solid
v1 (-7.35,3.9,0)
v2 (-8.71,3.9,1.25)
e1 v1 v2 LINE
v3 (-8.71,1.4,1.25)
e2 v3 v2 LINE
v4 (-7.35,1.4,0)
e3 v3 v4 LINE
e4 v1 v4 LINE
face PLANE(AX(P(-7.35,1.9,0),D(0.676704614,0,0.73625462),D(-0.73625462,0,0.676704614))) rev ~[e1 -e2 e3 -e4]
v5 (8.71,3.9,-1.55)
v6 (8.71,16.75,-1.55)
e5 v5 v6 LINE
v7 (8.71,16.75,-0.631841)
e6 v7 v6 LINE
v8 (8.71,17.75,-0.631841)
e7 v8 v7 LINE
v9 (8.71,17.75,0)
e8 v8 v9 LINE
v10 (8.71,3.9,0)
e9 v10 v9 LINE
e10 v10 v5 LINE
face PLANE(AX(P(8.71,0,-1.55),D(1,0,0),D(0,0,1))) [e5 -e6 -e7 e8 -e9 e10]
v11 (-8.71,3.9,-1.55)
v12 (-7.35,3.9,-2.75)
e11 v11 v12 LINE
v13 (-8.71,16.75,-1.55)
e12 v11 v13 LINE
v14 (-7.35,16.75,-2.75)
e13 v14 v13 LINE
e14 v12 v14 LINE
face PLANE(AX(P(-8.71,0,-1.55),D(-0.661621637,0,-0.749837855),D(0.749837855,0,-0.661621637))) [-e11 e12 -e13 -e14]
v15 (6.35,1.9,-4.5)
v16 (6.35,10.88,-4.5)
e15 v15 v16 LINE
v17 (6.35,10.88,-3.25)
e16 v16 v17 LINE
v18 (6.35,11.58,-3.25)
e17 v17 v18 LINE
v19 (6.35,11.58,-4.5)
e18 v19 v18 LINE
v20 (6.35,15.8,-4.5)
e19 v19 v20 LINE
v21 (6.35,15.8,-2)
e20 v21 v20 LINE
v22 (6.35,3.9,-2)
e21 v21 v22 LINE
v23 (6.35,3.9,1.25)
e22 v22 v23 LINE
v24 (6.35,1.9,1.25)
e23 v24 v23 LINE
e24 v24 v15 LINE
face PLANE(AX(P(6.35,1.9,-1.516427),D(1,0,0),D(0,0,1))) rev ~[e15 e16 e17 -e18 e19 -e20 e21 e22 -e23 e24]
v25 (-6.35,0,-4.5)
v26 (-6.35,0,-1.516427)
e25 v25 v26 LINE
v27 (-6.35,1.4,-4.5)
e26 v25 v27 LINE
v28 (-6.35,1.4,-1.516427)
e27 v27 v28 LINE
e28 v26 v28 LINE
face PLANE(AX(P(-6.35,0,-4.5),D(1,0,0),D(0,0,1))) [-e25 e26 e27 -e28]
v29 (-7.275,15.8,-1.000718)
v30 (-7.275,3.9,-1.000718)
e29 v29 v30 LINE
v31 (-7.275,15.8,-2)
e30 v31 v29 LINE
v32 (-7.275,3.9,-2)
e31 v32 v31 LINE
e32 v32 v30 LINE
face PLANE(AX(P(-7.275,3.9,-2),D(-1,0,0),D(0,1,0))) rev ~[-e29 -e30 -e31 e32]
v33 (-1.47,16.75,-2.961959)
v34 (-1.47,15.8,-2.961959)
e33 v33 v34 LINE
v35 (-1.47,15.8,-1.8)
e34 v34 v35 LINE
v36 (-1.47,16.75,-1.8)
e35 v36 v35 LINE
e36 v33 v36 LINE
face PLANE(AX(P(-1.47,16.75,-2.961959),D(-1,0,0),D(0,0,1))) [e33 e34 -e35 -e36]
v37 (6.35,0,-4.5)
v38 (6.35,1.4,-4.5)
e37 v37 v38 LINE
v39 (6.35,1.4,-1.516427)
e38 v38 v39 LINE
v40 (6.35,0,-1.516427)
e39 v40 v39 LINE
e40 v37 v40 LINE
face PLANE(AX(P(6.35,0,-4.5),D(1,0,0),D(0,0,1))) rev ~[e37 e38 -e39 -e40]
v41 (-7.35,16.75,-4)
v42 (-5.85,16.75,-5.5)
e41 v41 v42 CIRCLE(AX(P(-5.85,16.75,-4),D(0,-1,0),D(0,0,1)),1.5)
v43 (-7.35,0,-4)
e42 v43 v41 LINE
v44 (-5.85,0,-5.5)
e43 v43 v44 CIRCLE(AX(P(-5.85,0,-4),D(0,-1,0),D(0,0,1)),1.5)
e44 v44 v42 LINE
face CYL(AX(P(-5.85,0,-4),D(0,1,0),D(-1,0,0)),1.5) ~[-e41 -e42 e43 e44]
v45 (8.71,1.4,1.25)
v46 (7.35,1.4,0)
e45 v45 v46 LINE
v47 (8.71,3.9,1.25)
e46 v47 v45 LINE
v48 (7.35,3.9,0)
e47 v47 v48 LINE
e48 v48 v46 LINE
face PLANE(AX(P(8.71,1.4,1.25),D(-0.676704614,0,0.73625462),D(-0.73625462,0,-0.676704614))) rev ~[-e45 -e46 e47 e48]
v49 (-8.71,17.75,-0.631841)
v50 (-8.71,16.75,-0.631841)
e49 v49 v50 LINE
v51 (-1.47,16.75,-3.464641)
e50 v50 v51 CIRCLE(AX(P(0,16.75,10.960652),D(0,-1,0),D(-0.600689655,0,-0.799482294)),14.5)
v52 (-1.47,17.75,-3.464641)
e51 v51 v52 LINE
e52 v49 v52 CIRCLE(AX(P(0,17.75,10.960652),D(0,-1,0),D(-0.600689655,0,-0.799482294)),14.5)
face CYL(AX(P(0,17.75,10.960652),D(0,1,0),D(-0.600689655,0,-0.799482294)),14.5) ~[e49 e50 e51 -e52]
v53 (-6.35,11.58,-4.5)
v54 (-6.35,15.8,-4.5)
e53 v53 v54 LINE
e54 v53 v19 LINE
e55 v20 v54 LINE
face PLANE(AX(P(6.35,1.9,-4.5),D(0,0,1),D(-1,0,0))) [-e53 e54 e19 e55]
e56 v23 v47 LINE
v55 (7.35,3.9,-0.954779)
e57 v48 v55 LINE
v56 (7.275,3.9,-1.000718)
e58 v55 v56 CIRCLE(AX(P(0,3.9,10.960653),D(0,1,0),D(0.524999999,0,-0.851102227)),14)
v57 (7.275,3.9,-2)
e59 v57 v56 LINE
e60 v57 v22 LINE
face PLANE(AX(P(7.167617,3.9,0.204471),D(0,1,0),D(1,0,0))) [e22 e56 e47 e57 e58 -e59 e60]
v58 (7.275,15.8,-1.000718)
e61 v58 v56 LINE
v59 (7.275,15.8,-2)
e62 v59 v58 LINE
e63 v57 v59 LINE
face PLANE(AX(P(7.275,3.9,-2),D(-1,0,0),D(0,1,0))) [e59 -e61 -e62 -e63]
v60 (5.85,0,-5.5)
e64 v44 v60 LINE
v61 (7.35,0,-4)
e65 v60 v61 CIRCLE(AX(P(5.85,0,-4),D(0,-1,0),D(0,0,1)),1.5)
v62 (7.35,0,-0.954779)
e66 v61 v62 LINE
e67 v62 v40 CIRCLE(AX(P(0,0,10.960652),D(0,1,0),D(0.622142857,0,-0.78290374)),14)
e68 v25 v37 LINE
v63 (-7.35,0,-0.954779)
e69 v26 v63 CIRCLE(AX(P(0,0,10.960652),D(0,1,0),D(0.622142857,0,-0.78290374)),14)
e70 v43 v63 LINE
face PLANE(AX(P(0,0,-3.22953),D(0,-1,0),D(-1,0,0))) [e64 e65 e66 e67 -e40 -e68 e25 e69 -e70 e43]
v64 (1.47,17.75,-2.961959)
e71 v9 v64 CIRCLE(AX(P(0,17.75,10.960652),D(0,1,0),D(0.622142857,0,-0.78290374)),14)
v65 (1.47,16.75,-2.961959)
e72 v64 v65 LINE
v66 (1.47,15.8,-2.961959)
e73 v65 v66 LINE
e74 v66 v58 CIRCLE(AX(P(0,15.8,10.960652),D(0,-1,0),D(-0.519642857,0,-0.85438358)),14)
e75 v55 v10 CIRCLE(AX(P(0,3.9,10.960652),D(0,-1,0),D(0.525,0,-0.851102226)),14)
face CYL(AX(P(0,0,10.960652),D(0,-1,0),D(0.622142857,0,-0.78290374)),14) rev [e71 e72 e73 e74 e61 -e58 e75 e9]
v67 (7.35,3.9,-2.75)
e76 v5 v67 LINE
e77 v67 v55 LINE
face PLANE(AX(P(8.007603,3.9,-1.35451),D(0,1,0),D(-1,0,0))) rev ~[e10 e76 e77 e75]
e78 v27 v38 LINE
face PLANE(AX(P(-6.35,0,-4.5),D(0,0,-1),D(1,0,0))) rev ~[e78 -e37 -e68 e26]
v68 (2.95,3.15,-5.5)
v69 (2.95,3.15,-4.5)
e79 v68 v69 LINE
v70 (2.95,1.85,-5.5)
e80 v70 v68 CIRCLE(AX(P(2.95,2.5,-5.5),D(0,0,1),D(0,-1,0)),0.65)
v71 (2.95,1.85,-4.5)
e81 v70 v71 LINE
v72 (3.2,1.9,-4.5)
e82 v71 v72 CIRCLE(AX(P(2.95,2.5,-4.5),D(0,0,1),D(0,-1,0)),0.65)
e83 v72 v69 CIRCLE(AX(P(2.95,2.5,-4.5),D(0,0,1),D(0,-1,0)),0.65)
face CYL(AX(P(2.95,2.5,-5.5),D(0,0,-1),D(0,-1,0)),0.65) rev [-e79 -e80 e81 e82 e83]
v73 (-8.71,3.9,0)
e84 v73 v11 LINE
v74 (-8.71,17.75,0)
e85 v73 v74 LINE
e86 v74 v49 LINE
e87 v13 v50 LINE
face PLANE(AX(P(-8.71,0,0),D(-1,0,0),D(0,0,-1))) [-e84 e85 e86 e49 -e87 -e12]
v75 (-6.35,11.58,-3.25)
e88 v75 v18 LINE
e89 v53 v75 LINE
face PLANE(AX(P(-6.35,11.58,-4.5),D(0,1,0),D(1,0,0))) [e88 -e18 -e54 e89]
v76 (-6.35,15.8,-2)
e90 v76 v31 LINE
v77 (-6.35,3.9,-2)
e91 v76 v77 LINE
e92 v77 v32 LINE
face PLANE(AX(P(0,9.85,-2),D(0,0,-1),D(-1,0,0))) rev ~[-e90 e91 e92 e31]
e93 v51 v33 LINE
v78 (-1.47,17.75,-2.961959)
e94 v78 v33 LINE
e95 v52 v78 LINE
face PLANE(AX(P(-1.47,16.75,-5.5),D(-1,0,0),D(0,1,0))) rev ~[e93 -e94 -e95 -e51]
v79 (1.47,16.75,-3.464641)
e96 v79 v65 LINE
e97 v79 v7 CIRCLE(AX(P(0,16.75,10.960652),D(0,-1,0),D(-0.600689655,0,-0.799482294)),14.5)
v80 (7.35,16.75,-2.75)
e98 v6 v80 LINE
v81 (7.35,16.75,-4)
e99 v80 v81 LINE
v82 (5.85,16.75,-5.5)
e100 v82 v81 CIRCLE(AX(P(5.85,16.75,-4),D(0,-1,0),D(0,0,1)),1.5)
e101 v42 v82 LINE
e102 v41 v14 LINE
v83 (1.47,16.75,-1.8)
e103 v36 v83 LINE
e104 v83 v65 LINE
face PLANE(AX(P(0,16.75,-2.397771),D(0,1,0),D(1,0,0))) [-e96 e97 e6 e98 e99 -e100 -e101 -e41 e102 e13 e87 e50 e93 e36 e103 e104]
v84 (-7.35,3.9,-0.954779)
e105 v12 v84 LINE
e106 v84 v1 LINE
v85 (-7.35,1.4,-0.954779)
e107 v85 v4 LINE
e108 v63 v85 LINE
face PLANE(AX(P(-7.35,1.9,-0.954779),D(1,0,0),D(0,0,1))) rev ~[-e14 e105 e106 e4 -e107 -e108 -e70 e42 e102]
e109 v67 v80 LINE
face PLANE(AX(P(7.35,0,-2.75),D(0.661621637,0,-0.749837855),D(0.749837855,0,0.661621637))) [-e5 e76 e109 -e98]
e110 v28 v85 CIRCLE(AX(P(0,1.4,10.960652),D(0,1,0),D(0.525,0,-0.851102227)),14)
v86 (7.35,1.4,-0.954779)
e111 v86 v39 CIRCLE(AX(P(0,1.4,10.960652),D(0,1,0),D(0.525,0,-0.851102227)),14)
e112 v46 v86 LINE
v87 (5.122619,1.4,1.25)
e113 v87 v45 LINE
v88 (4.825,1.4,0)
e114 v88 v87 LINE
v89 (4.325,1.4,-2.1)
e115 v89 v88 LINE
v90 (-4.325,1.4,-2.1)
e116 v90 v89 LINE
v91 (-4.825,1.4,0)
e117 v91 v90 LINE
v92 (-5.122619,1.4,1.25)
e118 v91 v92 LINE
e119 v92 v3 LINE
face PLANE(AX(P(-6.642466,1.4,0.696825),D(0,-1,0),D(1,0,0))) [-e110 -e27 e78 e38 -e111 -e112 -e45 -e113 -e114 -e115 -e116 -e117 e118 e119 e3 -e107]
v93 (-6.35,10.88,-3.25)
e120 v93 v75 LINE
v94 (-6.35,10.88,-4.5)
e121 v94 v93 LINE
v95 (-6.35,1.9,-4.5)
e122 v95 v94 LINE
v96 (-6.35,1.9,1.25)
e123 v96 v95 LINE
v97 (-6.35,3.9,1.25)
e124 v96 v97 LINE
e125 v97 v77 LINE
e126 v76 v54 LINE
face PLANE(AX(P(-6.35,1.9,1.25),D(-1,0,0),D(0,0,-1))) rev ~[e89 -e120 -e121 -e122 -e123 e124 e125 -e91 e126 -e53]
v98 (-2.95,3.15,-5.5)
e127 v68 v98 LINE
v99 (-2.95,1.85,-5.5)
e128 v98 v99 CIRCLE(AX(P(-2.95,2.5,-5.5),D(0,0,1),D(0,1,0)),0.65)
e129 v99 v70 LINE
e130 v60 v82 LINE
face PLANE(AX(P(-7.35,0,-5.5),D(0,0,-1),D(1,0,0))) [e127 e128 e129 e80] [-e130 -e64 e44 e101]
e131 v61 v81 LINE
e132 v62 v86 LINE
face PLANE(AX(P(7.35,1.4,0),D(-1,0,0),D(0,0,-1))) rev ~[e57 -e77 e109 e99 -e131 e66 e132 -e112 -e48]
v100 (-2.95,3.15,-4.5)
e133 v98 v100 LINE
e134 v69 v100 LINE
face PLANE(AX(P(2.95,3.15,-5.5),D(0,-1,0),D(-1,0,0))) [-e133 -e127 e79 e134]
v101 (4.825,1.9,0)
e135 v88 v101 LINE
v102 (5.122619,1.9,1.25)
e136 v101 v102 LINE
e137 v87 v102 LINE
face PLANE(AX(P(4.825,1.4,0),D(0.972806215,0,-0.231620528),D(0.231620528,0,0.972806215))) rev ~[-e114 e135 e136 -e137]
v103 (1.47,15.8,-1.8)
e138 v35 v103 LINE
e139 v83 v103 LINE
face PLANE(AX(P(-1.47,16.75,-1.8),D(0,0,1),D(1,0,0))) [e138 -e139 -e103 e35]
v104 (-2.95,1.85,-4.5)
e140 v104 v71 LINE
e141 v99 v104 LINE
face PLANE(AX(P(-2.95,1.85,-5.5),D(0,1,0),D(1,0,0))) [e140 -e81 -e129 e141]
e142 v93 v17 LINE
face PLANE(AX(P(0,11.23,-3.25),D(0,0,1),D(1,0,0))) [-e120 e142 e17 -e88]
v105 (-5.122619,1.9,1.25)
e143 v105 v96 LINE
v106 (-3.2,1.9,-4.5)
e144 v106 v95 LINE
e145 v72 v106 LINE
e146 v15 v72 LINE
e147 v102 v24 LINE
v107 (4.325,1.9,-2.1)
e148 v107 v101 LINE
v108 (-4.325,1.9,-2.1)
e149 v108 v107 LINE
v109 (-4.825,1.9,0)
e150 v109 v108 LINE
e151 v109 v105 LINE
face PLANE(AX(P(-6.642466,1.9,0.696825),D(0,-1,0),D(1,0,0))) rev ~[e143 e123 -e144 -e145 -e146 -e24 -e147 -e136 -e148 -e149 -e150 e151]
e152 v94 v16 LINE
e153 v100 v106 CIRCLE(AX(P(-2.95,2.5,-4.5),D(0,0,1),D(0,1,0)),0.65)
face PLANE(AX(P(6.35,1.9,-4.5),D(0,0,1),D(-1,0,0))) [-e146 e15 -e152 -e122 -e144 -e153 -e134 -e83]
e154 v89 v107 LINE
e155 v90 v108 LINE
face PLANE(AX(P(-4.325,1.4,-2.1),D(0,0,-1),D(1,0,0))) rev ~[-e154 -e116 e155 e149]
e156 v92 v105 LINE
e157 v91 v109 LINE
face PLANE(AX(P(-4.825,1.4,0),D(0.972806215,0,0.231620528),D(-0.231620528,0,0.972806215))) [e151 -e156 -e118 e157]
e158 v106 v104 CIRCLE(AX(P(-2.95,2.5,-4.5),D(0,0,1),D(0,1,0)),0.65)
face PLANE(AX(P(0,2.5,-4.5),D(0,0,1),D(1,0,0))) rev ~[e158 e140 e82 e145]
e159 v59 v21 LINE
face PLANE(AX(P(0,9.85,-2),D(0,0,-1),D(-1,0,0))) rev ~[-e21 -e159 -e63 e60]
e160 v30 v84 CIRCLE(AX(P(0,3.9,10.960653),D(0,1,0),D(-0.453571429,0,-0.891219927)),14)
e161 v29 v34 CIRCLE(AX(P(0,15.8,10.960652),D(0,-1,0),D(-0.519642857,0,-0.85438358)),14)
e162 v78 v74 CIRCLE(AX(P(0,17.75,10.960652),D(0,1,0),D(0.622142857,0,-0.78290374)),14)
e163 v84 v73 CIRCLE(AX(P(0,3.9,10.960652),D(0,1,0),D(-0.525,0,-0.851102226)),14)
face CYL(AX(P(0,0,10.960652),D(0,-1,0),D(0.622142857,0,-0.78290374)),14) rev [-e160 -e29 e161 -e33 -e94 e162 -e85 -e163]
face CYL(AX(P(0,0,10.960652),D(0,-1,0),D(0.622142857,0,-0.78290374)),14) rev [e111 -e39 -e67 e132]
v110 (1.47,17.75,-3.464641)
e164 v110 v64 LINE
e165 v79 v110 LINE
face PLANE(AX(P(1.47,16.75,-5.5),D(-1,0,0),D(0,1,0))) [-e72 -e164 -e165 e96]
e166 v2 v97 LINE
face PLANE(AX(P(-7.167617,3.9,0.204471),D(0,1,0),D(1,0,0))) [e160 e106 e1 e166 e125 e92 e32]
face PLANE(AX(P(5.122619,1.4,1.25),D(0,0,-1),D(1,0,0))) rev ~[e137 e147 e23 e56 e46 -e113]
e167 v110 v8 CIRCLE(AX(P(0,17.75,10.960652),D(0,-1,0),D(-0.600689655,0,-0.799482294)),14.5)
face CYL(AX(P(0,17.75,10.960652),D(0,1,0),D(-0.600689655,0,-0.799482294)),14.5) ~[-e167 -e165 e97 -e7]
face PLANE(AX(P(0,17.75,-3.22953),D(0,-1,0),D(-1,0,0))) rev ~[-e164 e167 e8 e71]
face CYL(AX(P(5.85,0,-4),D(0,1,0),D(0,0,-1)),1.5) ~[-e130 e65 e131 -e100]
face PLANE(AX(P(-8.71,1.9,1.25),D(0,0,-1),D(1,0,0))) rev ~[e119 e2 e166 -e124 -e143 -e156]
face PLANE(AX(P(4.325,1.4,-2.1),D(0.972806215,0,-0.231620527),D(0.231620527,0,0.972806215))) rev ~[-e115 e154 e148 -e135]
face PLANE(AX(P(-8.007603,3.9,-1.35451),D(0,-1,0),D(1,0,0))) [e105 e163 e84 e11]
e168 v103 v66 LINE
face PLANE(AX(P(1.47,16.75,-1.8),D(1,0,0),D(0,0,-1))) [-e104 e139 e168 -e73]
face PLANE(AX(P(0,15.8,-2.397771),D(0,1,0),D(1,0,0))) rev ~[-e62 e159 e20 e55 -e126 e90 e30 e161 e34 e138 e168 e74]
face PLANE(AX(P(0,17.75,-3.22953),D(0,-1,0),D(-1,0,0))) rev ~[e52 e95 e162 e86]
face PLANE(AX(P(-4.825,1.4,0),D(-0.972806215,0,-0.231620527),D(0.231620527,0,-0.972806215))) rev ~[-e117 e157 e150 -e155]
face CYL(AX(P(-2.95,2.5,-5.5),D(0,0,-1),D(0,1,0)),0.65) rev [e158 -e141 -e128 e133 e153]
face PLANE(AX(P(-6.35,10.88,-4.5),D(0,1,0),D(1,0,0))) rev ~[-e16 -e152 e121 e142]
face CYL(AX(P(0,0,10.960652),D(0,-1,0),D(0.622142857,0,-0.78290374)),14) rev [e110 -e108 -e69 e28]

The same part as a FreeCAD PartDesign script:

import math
import FreeCAD as App
import Part
import Sketcher
from FreeCAD import Vector
Q = App.Units.Quantity


def edges_at(feature, points):
    """Names of the edges that pass closest to the given points."""
    edges = feature.Shape.Edges
    near = lambda p: min(range(len(edges)), key=lambda i: edges[i].distToShape(Part.Vertex(*p))[0])
    return sorted({f"Edge{near(p) + 1}" for p in points})

doc = App.newDocument("Part")
body = doc.addObject("PartDesign::Body", "Body")

# Sketch on XZ plane
sketch1 = body.newObject("Sketcher::SketchObject", "Sketch")
sketch1.AttachmentSupport = (doc.getObject("XZ_Plane"), [""])
sketch1.MapMode = "FlatFace"
sketch1.addGeometry([
    Part.LineSegment(Vector(-7.3, -5.5, 0), Vector(-7.3, -2.8, 0)),  # 0
    Part.LineSegment(Vector(-7.3, -2.8, 0), Vector(-8.7, -1.6, 0)),  # 1
    Part.LineSegment(Vector(-8.7, -1.6, 0), Vector(-8.7, 0, 0)),  # 2
    Part.ArcOfCircle(Part.Circle(Vector(0, 11, 0), Vector(0, 0, 1), 14), math.radians(-128), math.radians(-52)),  # 3
    Part.LineSegment(Vector(8.7, 0, 0), Vector(8.7, -1.6, 0)),  # 4
    Part.LineSegment(Vector(8.7, -1.6, 0), Vector(7.3, -2.8, 0)),  # 5
    Part.LineSegment(Vector(7.3, -2.8, 0), Vector(7.3, -5.5, 0)),  # 6
    Part.LineSegment(Vector(7.3, -5.5, 0), Vector(-7.3, -5.5, 0)),  # 7
], False)
sketch1.addConstraint([
    Sketcher.Constraint("Coincident", 0, 2, 1, 1),
    Sketcher.Constraint("Coincident", 1, 2, 2, 1),
    Sketcher.Constraint("Coincident", 2, 2, 3, 1),
    Sketcher.Constraint("Coincident", 3, 2, 4, 1),
    Sketcher.Constraint("Coincident", 4, 2, 5, 1),
    Sketcher.Constraint("Coincident", 5, 2, 6, 1),
    Sketcher.Constraint("Coincident", 6, 2, 7, 1),
    Sketcher.Constraint("Coincident", 7, 2, 0, 1),
    Sketcher.Constraint("Vertical", 0),
    Sketcher.Constraint("Vertical", 2),
    Sketcher.Constraint("Vertical", 4),
    Sketcher.Constraint("Vertical", 6),
    Sketcher.Constraint("Horizontal", 7),
    Sketcher.Constraint("Symmetric", 2, 2, 3, 2, -1, 1),
    Sketcher.Constraint("Symmetric", 0, 2, 5, 2, -2),
    Sketcher.Constraint("PointOnObject", 3, 3, -2),
    Sketcher.Constraint("Horizontal", 1, 2, 4, 2),
    Sketcher.Constraint("Radius", 3, Q("14 mm")),
    Sketcher.Constraint("DistanceX", 7, 2, 7, 1, Q("14.7 mm")),
    Sketcher.Constraint("DistanceY", 0, 1, 0, 2, Q("2.75 mm")),
    Sketcher.Constraint("DistanceY", 2, 1, 2, 2, Q("1.55 mm")),
    Sketcher.Constraint("DistanceY", 6, 2, -1, 1, Q("5.5 mm")),
    Sketcher.Constraint("DistanceX", 1, 2, -1, 1, Q("8.71 mm")),
])
pad1 = body.newObject("PartDesign::Pad", "Pad")
pad1.Profile = sketch1
pad1.Length = 17.75
pad1.Reversed = True

# Sketch on XZ plane
sketch2 = body.newObject("Sketcher::SketchObject", "Sketch001")
sketch2.AttachmentSupport = (doc.getObject("XZ_Plane"), [""])
sketch2.MapMode = "FlatFace"
sketch2.AttachmentOffset = App.Placement(Vector(0, 0, -17.75), App.Rotation())
sketch2.addGeometry([
    Part.LineSegment(Vector(8.7, -0.6, 0), Vector(8.7, -1.6, 0)),  # 0
    Part.LineSegment(Vector(8.7, -1.6, 0), Vector(7.3, -2.8, 0)),  # 1
    Part.LineSegment(Vector(7.3, -2.8, 0), Vector(7.3, -5.5, 0)),  # 2
    Part.LineSegment(Vector(7.3, -5.5, 0), Vector(-7.3, -5.5, 0)),  # 3
    Part.LineSegment(Vector(-7.3, -5.5, 0), Vector(-7.3, -2.8, 0)),  # 4
    Part.LineSegment(Vector(-7.3, -2.8, 0), Vector(-8.7, -1.6, 0)),  # 5
    Part.LineSegment(Vector(-8.7, -1.6, 0), Vector(-8.7, -0.6, 0)),  # 6
    Part.ArcOfCircle(Part.Circle(Vector(0, 11, 0), Vector(0, 0, 1), 14.5), math.radians(-127), math.radians(-53)),  # 7
], False)
sketch2.addConstraint([
    Sketcher.Constraint("Coincident", 0, 2, 1, 1),
    Sketcher.Constraint("Coincident", 1, 2, 2, 1),
    Sketcher.Constraint("Coincident", 2, 2, 3, 1),
    Sketcher.Constraint("Coincident", 3, 2, 4, 1),
    Sketcher.Constraint("Coincident", 4, 2, 5, 1),
    Sketcher.Constraint("Coincident", 5, 2, 6, 1),
    Sketcher.Constraint("Coincident", 6, 2, 7, 1),
    Sketcher.Constraint("Coincident", 7, 2, 0, 1),
    Sketcher.Constraint("Vertical", 0),
    Sketcher.Constraint("Vertical", 2),
    Sketcher.Constraint("Horizontal", 3),
    Sketcher.Constraint("Vertical", 4),
    Sketcher.Constraint("Vertical", 6),
    Sketcher.Constraint("Symmetric", 1, 2, 4, 2, -2),
    Sketcher.Constraint("Symmetric", 0, 2, 5, 2, -2),
    Sketcher.Constraint("PointOnObject", 7, 3, -2),
    Sketcher.Constraint("Radius", 7, Q("14.5 mm")),
    Sketcher.Constraint("DistanceX", 3, 2, 3, 1, Q("14.7 mm")),
    Sketcher.Constraint("DistanceY", 2, 2, 2, 1, Q("2.75 mm")),
    Sketcher.Constraint("DistanceY", 2, 2, -1, 1, Q("5.5 mm")),
    Sketcher.Constraint("DistanceY", 1, 2, 0, 2, Q("1.2 mm")),
    Sketcher.Constraint("DistanceX", -1, 1, 0, 2, Q("8.71 mm")),
    Sketcher.Constraint("DistanceY", 0, 2, 0, 1, Q("0.918159 mm")),
])
pocket1 = body.newObject("PartDesign::Pocket", "Pocket")
pocket1.Profile = sketch2
pocket1.Length = 1
pocket1.Reversed = True

# Sketch on XY plane
sketch3 = body.newObject("Sketcher::SketchObject", "Sketch002")
sketch3.AttachmentSupport = (doc.getObject("XY_Plane"), [""])
sketch3.MapMode = "FlatFace"
sketch3.AttachmentOffset = App.Placement(Vector(0, 0, -5.5), App.Rotation())
sketch3.addGeometry([
    Part.LineSegment(Vector(1.5, 17.8, 0), Vector(1.5, 16.8, 0)),
    Part.LineSegment(Vector(1.5, 16.8, 0), Vector(-1.5, 16.8, 0)),
    Part.LineSegment(Vector(-1.5, 16.8, 0), Vector(-1.5, 17.8, 0)),
    Part.LineSegment(Vector(-1.5, 17.8, 0), Vector(1.5, 17.8, 0)),
], False)
sketch3.addConstraint([
    Sketcher.Constraint("Coincident", 0, 2, 1, 1),
    Sketcher.Constraint("Coincident", 1, 2, 2, 1),
    Sketcher.Constraint("Coincident", 2, 2, 3, 1),
    Sketcher.Constraint("Coincident", 3, 2, 0, 1),
    Sketcher.Constraint("Vertical", 0),
    Sketcher.Constraint("Horizontal", 1),
    Sketcher.Constraint("Vertical", 2),
    Sketcher.Constraint("Horizontal", 3),
    Sketcher.Constraint("DistanceY", 0, 2, 0, 1, Q("1 mm")),
    Sketcher.Constraint("DistanceX", 1, 2, 1, 1, Q("2.94 mm")),
    Sketcher.Constraint("DistanceX", -1, 1, 0, 2, Q("1.47 mm")),
    Sketcher.Constraint("DistanceY", -1, 1, 0, 2, Q("16.75 mm")),
])
pocket2 = body.newObject("PartDesign::Pocket", "Pocket001")
pocket2.Profile = sketch3
pocket2.Type = "ThroughAll"
pocket2.Reversed = True

# Sketch on XZ plane
sketch4 = body.newObject("Sketcher::SketchObject", "Sketch003")
sketch4.AttachmentSupport = (doc.getObject("XZ_Plane"), [""])
sketch4.MapMode = "FlatFace"
sketch4.addGeometry([
    Part.LineSegment(Vector(-7.3, -2.8, 0), Vector(-7.3, -1, 0)),  # 0
    Part.ArcOfCircle(Part.Circle(Vector(0, 11, 0), Vector(0, 0, 1), 14), math.radians(-128.47), math.radians(-121.67)),  # 1
    Part.LineSegment(Vector(-8.7, 0, 0), Vector(-8.7, -1.6, 0)),  # 2
    Part.LineSegment(Vector(-8.7, -1.6, 0), Vector(-7.3, -2.8, 0)),  # 3
    Part.LineSegment(Vector(7.3, -1, 0), Vector(7.3, -2.8, 0)),  # 4
    Part.LineSegment(Vector(7.3, -2.8, 0), Vector(8.7, -1.6, 0)),  # 5
    Part.LineSegment(Vector(8.7, -1.6, 0), Vector(8.7, 0, 0)),  # 6
    Part.ArcOfCircle(Part.Circle(Vector(0, 11, 0), Vector(0, 0, 1), 14), math.radians(-58.33), math.radians(-51.53)),  # 7
], False)
sketch4.addConstraint([
    Sketcher.Constraint("Coincident", 0, 2, 1, 2),
    Sketcher.Constraint("Coincident", 1, 1, 2, 1),
    Sketcher.Constraint("Coincident", 2, 2, 3, 1),
    Sketcher.Constraint("Coincident", 3, 2, 0, 1),
    Sketcher.Constraint("Coincident", 4, 2, 5, 1),
    Sketcher.Constraint("Coincident", 5, 2, 6, 1),
    Sketcher.Constraint("Coincident", 6, 2, 7, 2),
    Sketcher.Constraint("Coincident", 7, 1, 4, 1),
    Sketcher.Constraint("Vertical", 0),
    Sketcher.Constraint("Vertical", 2),
    Sketcher.Constraint("Vertical", 4),
    Sketcher.Constraint("Vertical", 6),
    Sketcher.Constraint("Coincident", 7, 3, 1, 3),
    Sketcher.Constraint("Equal", 1, 7),
    Sketcher.Constraint("Symmetric", 1, 1, 6, 2, -1, 1),
    Sketcher.Constraint("Symmetric", 3, 2, 4, 2, -2),
    Sketcher.Constraint("PointOnObject", 1, 3, -2),
    Sketcher.Constraint("Horizontal", 2, 2, 5, 2),
    Sketcher.Constraint("Radius", 1, Q("14 mm")),
    Sketcher.Constraint("DistanceY", 2, 2, 2, 1, Q("1.55 mm")),
    Sketcher.Constraint("DistanceY", 3, 2, 2, 2, Q("1.2 mm")),
    Sketcher.Constraint("DistanceX", 3, 2, 4, 2, Q("14.7 mm")),
    Sketcher.Constraint("DistanceX", 1, 1, -1, 1, Q("8.71 mm")),
])
pocket3 = body.newObject("PartDesign::Pocket", "Pocket002")
pocket3.Profile = sketch4
pocket3.Length = 3.9

# Sketch on XZ plane
sketch5 = body.newObject("Sketcher::SketchObject", "Sketch004")
sketch5.AttachmentSupport = (doc.getObject("XZ_Plane"), [""])
sketch5.MapMode = "FlatFace"
sketch5.addGeometry([
    Part.LineSegment(Vector(-6.3, -1.5, 0), Vector(-6.3, -4.5, 0)),
    Part.LineSegment(Vector(-6.3, -4.5, 0), Vector(6.3, -4.5, 0)),
    Part.LineSegment(Vector(6.3, -4.5, 0), Vector(6.3, -1.5, 0)),
    Part.LineSegment(Vector(6.3, -1.5, 0), Vector(-6.3, -1.5, 0)),
], False)
sketch5.addConstraint([
    Sketcher.Constraint("Coincident", 0, 2, 1, 1),
    Sketcher.Constraint("Coincident", 1, 2, 2, 1),
    Sketcher.Constraint("Coincident", 2, 2, 3, 1),
    Sketcher.Constraint("Coincident", 3, 2, 0, 1),
    Sketcher.Constraint("Vertical", 0),
    Sketcher.Constraint("Horizontal", 1),
    Sketcher.Constraint("Vertical", 2),
    Sketcher.Constraint("Horizontal", 3),
    Sketcher.Constraint("DistanceX", 1, 1, 1, 2, Q("12.7 mm")),
    Sketcher.Constraint("DistanceY", 0, 2, -1, 1, Q("4.5 mm")),
    Sketcher.Constraint("DistanceX", 0, 2, -1, 1, Q("6.35 mm")),
    Sketcher.Constraint("DistanceY", 0, 2, 0, 1, Q("2.983573 mm")),
])
pocket4 = body.newObject("PartDesign::Pocket", "Pocket003")
pocket4.Profile = sketch5
pocket4.Length = 1.4

# Sketch on XZ plane
sketch6 = body.newObject("Sketcher::SketchObject", "Sketch005")
sketch6.AttachmentSupport = (doc.getObject("XZ_Plane"), [""])
sketch6.MapMode = "FlatFace"
sketch6.AttachmentOffset = App.Placement(Vector(0, 0, -1.9), App.Rotation())
sketch6.addGeometry([
    Part.LineSegment(Vector(6.3, -4.5, 0), Vector(6.3, -1.5, 0)),
    Part.LineSegment(Vector(6.3, -1.5, 0), Vector(-6.3, -1.5, 0)),
    Part.LineSegment(Vector(-6.3, -1.5, 0), Vector(-6.3, -4.5, 0)),
    Part.LineSegment(Vector(-6.3, -4.5, 0), Vector(6.3, -4.5, 0)),
], False)
sketch6.addConstraint([
    Sketcher.Constraint("Coincident", 0, 2, 1, 1),
    Sketcher.Constraint("Coincident", 1, 2, 2, 1),
    Sketcher.Constraint("Coincident", 2, 2, 3, 1),
    Sketcher.Constraint("Coincident", 3, 2, 0, 1),
    Sketcher.Constraint("Vertical", 0),
    Sketcher.Constraint("Horizontal", 1),
    Sketcher.Constraint("Vertical", 2),
    Sketcher.Constraint("Horizontal", 3),
    Sketcher.Constraint("DistanceX", 1, 2, 1, 1, Q("12.7 mm")),
    Sketcher.Constraint("DistanceY", 2, 2, -1, 1, Q("4.5 mm")),
    Sketcher.Constraint("DistanceX", -1, 1, 0, 2, Q("6.35 mm")),
    Sketcher.Constraint("DistanceY", 0, 1, 0, 2, Q("2.983573 mm")),
])
pocket5 = body.newObject("PartDesign::Pocket", "Pocket004")
pocket5.Profile = sketch6
pocket5.Length = 13.9

# Sketch on XY plane
sketch7 = body.newObject("Sketcher::SketchObject", "Sketch006")
sketch7.AttachmentSupport = (doc.getObject("XY_Plane"), [""])
sketch7.MapMode = "FlatFace"
sketch7.AttachmentOffset = App.Placement(Vector(0, 0, -2), App.Rotation())
sketch7.addGeometry([
    Part.LineSegment(Vector(7, 16, 0), Vector(7, 4, 0)),
    Part.LineSegment(Vector(7, 4, 0), Vector(-7, 4, 0)),
    Part.LineSegment(Vector(-7, 4, 0), Vector(-7, 16, 0)),
    Part.LineSegment(Vector(-7, 16, 0), Vector(7, 16, 0)),
], False)
sketch7.addConstraint([
    Sketcher.Constraint("Coincident", 0, 2, 1, 1),
    Sketcher.Constraint("Coincident", 1, 2, 2, 1),
    Sketcher.Constraint("Coincident", 2, 2, 3, 1),
    Sketcher.Constraint("Coincident", 3, 2, 0, 1),
    Sketcher.Constraint("Vertical", 0),
    Sketcher.Constraint("Horizontal", 1),
    Sketcher.Constraint("Vertical", 2),
    Sketcher.Constraint("Horizontal", 3),
    Sketcher.Constraint("DistanceY", 0, 2, 0, 1, Q("11.9 mm")),
    Sketcher.Constraint("DistanceX", 1, 2, 1, 1, Q("14.55 mm")),
    Sketcher.Constraint("DistanceY", -1, 1, 0, 2, Q("3.9 mm")),
    Sketcher.Constraint("DistanceX", -1, 1, 0, 2, Q("7.275 mm")),
])
pocket6 = body.newObject("PartDesign::Pocket", "Pocket005")
pocket6.Profile = sketch7
pocket6.Type = "ThroughAll"
pocket6.Reversed = True

# Sketch on XZ plane
sketch8 = body.newObject("Sketcher::SketchObject", "Sketch007")
sketch8.AttachmentSupport = (doc.getObject("XZ_Plane"), [""])
sketch8.MapMode = "FlatFace"
sketch8.AttachmentOffset = App.Placement(Vector(0, 0, -1.4), App.Rotation())
sketch8.addGeometry([
    Part.LineSegment(Vector(-4.8, 0, 0), Vector(-7.3, 0, 0)),  # 0
    Part.LineSegment(Vector(-7.3, 0, 0), Vector(-7.3, -1, 0)),  # 1
    Part.ArcOfCircle(Part.Circle(Vector(0, 11, 0), Vector(0, 0, 1), 14), math.radians(-122), math.radians(-58)),  # 2
    Part.LineSegment(Vector(7.3, -1, 0), Vector(7.3, 0, 0)),  # 3
    Part.LineSegment(Vector(7.3, 0, 0), Vector(4.8, 0, 0)),  # 4
    Part.LineSegment(Vector(4.8, 0, 0), Vector(4.3, -2.1, 0)),  # 5
    Part.LineSegment(Vector(4.3, -2.1, 0), Vector(-4.3, -2.1, 0)),  # 6
    Part.LineSegment(Vector(-4.3, -2.1, 0), Vector(-4.8, 0, 0)),  # 7
], False)
sketch8.addConstraint([
    Sketcher.Constraint("Coincident", 0, 2, 1, 1),
    Sketcher.Constraint("Coincident", 1, 2, 2, 1),
    Sketcher.Constraint("Coincident", 2, 2, 3, 1),
    Sketcher.Constraint("Coincident", 3, 2, 4, 1),
    Sketcher.Constraint("Coincident", 4, 2, 5, 1),
    Sketcher.Constraint("Coincident", 5, 2, 6, 1),
    Sketcher.Constraint("Coincident", 6, 2, 7, 1),
    Sketcher.Constraint("Coincident", 7, 2, 0, 1),
    Sketcher.Constraint("Horizontal", 0),
    Sketcher.Constraint("Vertical", 1),
    Sketcher.Constraint("Vertical", 3),
    Sketcher.Constraint("Horizontal", 4),
    Sketcher.Constraint("Horizontal", 6),
    Sketcher.Constraint("Symmetric", 0, 2, 3, 2, -1, 1),
    Sketcher.Constraint("Symmetric", 4, 2, 7, 2, -2),
    Sketcher.Constraint("PointOnObject", 2, 3, -2),
    Sketcher.Constraint("Equal", 5, 7),
    Sketcher.Constraint("Radius", 2, Q("14 mm")),
    Sketcher.Constraint("DistanceX", 6, 2, 6, 1, Q("8.65 mm")),
    Sketcher.Constraint("DistanceY", 5, 2, -1, 1, Q("2.1 mm")),
    Sketcher.Constraint("DistanceX", 1, 2, 2, 2, Q("14.7 mm")),
    Sketcher.Constraint("DistanceX", 5, 2, 4, 2, Q("0.5 mm")),
    Sketcher.Constraint("DistanceY", 1, 2, 1, 1, Q("0.954779 mm")),
])
pad2 = body.newObject("PartDesign::Pad", "Pad001")
pad2.Profile = sketch8
pad2.Length = 0.5
pad2.Reversed = True

# Sketch on XZ plane
sketch9 = body.newObject("Sketcher::SketchObject", "Sketch008")
sketch9.AttachmentSupport = (doc.getObject("XZ_Plane"), [""])
sketch9.MapMode = "FlatFace"
sketch9.AttachmentOffset = App.Placement(Vector(0, 0, -1.4), App.Rotation())
sketch9.addGeometry([
    Part.LineSegment(Vector(-4.8, 0, 0), Vector(-5.1, 1.2, 0)),  # 0
    Part.LineSegment(Vector(-5.1, 1.2, 0), Vector(-8.7, 1.2, 0)),  # 1
    Part.LineSegment(Vector(-8.7, 1.2, 0), Vector(-7.3, 0, 0)),  # 2
    Part.LineSegment(Vector(-7.3, 0, 0), Vector(-4.8, 0, 0)),  # 3
    Part.LineSegment(Vector(5.1, 1.2, 0), Vector(4.8, 0, 0)),  # 4
    Part.LineSegment(Vector(4.8, 0, 0), Vector(7.3, 0, 0)),  # 5
    Part.LineSegment(Vector(7.3, 0, 0), Vector(8.7, 1.2, 0)),  # 6
    Part.LineSegment(Vector(8.7, 1.2, 0), Vector(5.1, 1.2, 0)),  # 7
], False)
sketch9.addConstraint([
    Sketcher.Constraint("Coincident", 0, 2, 1, 1),
    Sketcher.Constraint("Coincident", 1, 2, 2, 1),
    Sketcher.Constraint("Coincident", 2, 2, 3, 1),
    Sketcher.Constraint("Coincident", 3, 2, 0, 1),
    Sketcher.Constraint("Coincident", 4, 2, 5, 1),
    Sketcher.Constraint("Coincident", 5, 2, 6, 1),
    Sketcher.Constraint("Coincident", 6, 2, 7, 1),
    Sketcher.Constraint("Coincident", 7, 2, 4, 1),
    Sketcher.Constraint("Horizontal", 1),
    Sketcher.Constraint("Horizontal", 3),
    Sketcher.Constraint("Horizontal", 5),
    Sketcher.Constraint("Horizontal", 7),
    Sketcher.Constraint("Symmetric", 3, 2, 4, 2, -1, 1),
    Sketcher.Constraint("Symmetric", 2, 2, 5, 2, -2),
    Sketcher.Constraint("Symmetric", 1, 2, 6, 2, -2),
    Sketcher.Constraint("Equal", 1, 7),
    Sketcher.Constraint("DistanceX", 2, 2, 5, 2, Q("14.7 mm")),
    Sketcher.Constraint("DistanceX", 3, 1, 3, 2, Q("2.525 mm")),
    Sketcher.Constraint("DistanceY", -1, 1, 0, 2, Q("1.25 mm")),
    Sketcher.Constraint("DistanceX", 1, 2, -1, 1, Q("8.71 mm")),
    Sketcher.Constraint("DistanceX", 1, 2, 1, 1, Q("3.587381 mm")),
])
pad3 = body.newObject("PartDesign::Pad", "Pad002")
pad3.Profile = sketch9
pad3.Length = 0.5
pad3.Reversed = True

# Sketch on XZ plane
sketch10 = body.newObject("Sketcher::SketchObject", "Sketch009")
sketch10.AttachmentSupport = (doc.getObject("XZ_Plane"), [""])
sketch10.MapMode = "FlatFace"
sketch10.AttachmentOffset = App.Placement(Vector(0, 0, -1.9), App.Rotation())
sketch10.addGeometry([
    Part.LineSegment(Vector(-7.3, 0, 0), Vector(-8.7, 1.2, 0)),  # 0
    Part.LineSegment(Vector(-8.7, 1.2, 0), Vector(-6.3, 1.2, 0)),  # 1
    Part.LineSegment(Vector(-6.3, 1.2, 0), Vector(-6.3, -1.5, 0)),  # 2
    Part.ArcOfCircle(Part.Circle(Vector(0, 11, 0), Vector(0, 0, 1), 14), math.radians(-121.67), math.radians(-116.97)),  # 3
    Part.LineSegment(Vector(-7.3, -1, 0), Vector(-7.3, 0, 0)),  # 4
    Part.LineSegment(Vector(7.3, 0, 0), Vector(7.3, -1, 0)),  # 5
    Part.ArcOfCircle(Part.Circle(Vector(0, 11, 0), Vector(0, 0, 1), 14), math.radians(-63.03), math.radians(-58.33)),  # 6
    Part.LineSegment(Vector(6.3, -1.5, 0), Vector(6.3, 1.2, 0)),  # 7
    Part.LineSegment(Vector(6.3, 1.2, 0), Vector(8.7, 1.2, 0)),  # 8
    Part.LineSegment(Vector(8.7, 1.2, 0), Vector(7.3, 0, 0)),  # 9
], False)
sketch10.addConstraint([
    Sketcher.Constraint("Coincident", 0, 2, 1, 1),
    Sketcher.Constraint("Coincident", 1, 2, 2, 1),
    Sketcher.Constraint("Coincident", 2, 2, 3, 2),
    Sketcher.Constraint("Coincident", 3, 1, 4, 1),
    Sketcher.Constraint("Coincident", 4, 2, 0, 1),
    Sketcher.Constraint("Coincident", 5, 2, 6, 2),
    Sketcher.Constraint("Coincident", 6, 1, 7, 1),
    Sketcher.Constraint("Coincident", 7, 2, 8, 1),
    Sketcher.Constraint("Coincident", 8, 2, 9, 1),
    Sketcher.Constraint("Coincident", 9, 2, 5, 1),
    Sketcher.Constraint("Horizontal", 1),
    Sketcher.Constraint("Vertical", 2),
    Sketcher.Constraint("Vertical", 4),
    Sketcher.Constraint("Vertical", 5),
    Sketcher.Constraint("Vertical", 7),
    Sketcher.Constraint("Horizontal", 8),
    Sketcher.Constraint("Coincident", 6, 3, 3, 3),
    Sketcher.Constraint("Equal", 3, 6),
    Sketcher.Constraint("Symmetric", 4, 2, 9, 2, -1, 1),
    Sketcher.Constraint("Symmetric", 2, 2, 6, 1, -2),
    Sketcher.Constraint("Symmetric", 0, 2, 8, 2, -2),
    Sketcher.Constraint("PointOnObject", 4, 2, -1),
    Sketcher.Constraint("Radius", 3, Q("14 mm")),
    Sketcher.Constraint("DistanceX", 3, 1, 2, 2, Q("1 mm")),
    Sketcher.Constraint("DistanceX", 1, 1, 1, 2, Q("2.36 mm")),
    Sketcher.Constraint("DistanceX", 2, 2, 5, 2, Q("13.7 mm")),
    Sketcher.Constraint("DistanceY", -1, 1, 0, 2, Q("1.25 mm")),
    Sketcher.Constraint("DistanceY", 4, 1, 4, 2, Q("0.954779 mm")),
])
pad4 = body.newObject("PartDesign::Pad", "Pad003")
pad4.Profile = sketch10
pad4.Length = 2
pad4.Reversed = True

# Sketch on XY plane
sketch11 = body.newObject("Sketcher::SketchObject", "Sketch010")
sketch11.AttachmentSupport = (doc.getObject("XY_Plane"), [""])
sketch11.MapMode = "FlatFace"
sketch11.AttachmentOffset = App.Placement(Vector(0, 0, -5.5), App.Rotation())
sketch11.addGeometry([
    Part.LineSegment(Vector(-3, 3.1, 0), Vector(3, 3.1, 0)),
    Part.ArcOfCircle(Part.Circle(Vector(3, 2.5, 0), Vector(0, 0, 1), 0.7), math.radians(-90), math.radians(90)),
    Part.LineSegment(Vector(3, 1.9, 0), Vector(-3, 1.9, 0)),
    Part.ArcOfCircle(Part.Circle(Vector(-3, 2.5, 0), Vector(0, 0, 1), 0.7), math.radians(90), math.radians(270)),
], False)
sketch11.addConstraint([
    Sketcher.Constraint("Tangent", 0, 2, 1, 2),
    Sketcher.Constraint("Tangent", 1, 1, 2, 1),
    Sketcher.Constraint("Tangent", 2, 2, 3, 2),
    Sketcher.Constraint("Tangent", 3, 1, 0, 1),
    Sketcher.Constraint("Horizontal", 0),
    Sketcher.Constraint("Horizontal", 2),
    Sketcher.Constraint("Radius", 1, Q("0.65 mm")),
    Sketcher.Constraint("DistanceX", 0, 1, 0, 2, Q("5.9 mm")),
    Sketcher.Constraint("DistanceY", -1, 1, 1, 3, Q("2.5 mm")),
    Sketcher.Constraint("DistanceX", -1, 1, 1, 3, Q("2.95 mm")),
])
pocket7 = body.newObject("PartDesign::Pocket", "Pocket006")
pocket7.Profile = sketch11
pocket7.Length = 1
pocket7.Reversed = True

# Sketch on XY plane
sketch12 = body.newObject("Sketcher::SketchObject", "Sketch011")
sketch12.AttachmentSupport = (doc.getObject("XY_Plane"), [""])
sketch12.MapMode = "FlatFace"
sketch12.AttachmentOffset = App.Placement(Vector(0, 0, -4.5), App.Rotation())
sketch12.addGeometry([
    Part.LineSegment(Vector(-6.3, 11.6, 0), Vector(-6.3, 10.9, 0)),
    Part.LineSegment(Vector(-6.3, 10.9, 0), Vector(6.3, 10.9, 0)),
    Part.LineSegment(Vector(6.3, 10.9, 0), Vector(6.3, 11.6, 0)),
    Part.LineSegment(Vector(6.3, 11.6, 0), Vector(-6.3, 11.6, 0)),
], False)
sketch12.addConstraint([
    Sketcher.Constraint("Coincident", 0, 2, 1, 1),
    Sketcher.Constraint("Coincident", 1, 2, 2, 1),
    Sketcher.Constraint("Coincident", 2, 2, 3, 1),
    Sketcher.Constraint("Coincident", 3, 2, 0, 1),
    Sketcher.Constraint("Vertical", 0),
    Sketcher.Constraint("Horizontal", 1),
    Sketcher.Constraint("Vertical", 2),
    Sketcher.Constraint("Horizontal", 3),
    Sketcher.Constraint("DistanceX", 1, 1, 1, 2, Q("12.7 mm")),
    Sketcher.Constraint("DistanceY", 0, 2, 0, 1, Q("0.7 mm")),
    Sketcher.Constraint("DistanceX", 0, 2, -1, 1, Q("6.35 mm")),
    Sketcher.Constraint("DistanceY", -1, 1, 0, 2, Q("10.88 mm")),
])
pad5 = body.newObject("PartDesign::Pad", "Pad004")
pad5.Profile = sketch12
pad5.Length = 1.25
doc.recompute()

fillet = body.newObject("PartDesign::Fillet", "Fillet")
fillet.Base = (pad5, edges_at(pad5, [(-7.35, 8.375, -5.5), (7.35, 8.375, -5.5)]))
fillet.Radius = 1.5

# Sketch on XZ plane
sketch13 = body.newObject("Sketcher::SketchObject", "Sketch012")
sketch13.AttachmentSupport = (doc.getObject("XZ_Plane"), [""])
sketch13.MapMode = "FlatFace"
sketch13.AttachmentOffset = App.Placement(Vector(0, 0, -16.75), App.Rotation())
sketch13.addGeometry([
    Part.LineSegment(Vector(-1.5, -3, 0), Vector(-1.5, -1.8, 0)),
    Part.LineSegment(Vector(-1.5, -1.8, 0), Vector(1.5, -1.8, 0)),
    Part.LineSegment(Vector(1.5, -1.8, 0), Vector(1.5, -3, 0)),
    Part.ArcOfCircle(Part.Circle(Vector(0, 11, 0), Vector(0, 0, 1), 14), math.radians(-96.03), math.radians(-83.97)),
], False)
sketch13.addConstraint([
    Sketcher.Constraint("Coincident", 0, 2, 1, 1),
    Sketcher.Constraint("Coincident", 1, 2, 2, 1),
    Sketcher.Constraint("Coincident", 2, 2, 3, 2),
    Sketcher.Constraint("Coincident", 3, 1, 0, 1),
    Sketcher.Constraint("Vertical", 0),
    Sketcher.Constraint("Horizontal", 1),
    Sketcher.Constraint("Vertical", 2),
    Sketcher.Constraint("Symmetric", 2, 2, 3, 1, -2),
    Sketcher.Constraint("Radius", 3, Q("14 mm")),
    Sketcher.Constraint("DistanceX", 1, 1, 1, 2, Q("2.94 mm")),
    Sketcher.Constraint("DistanceY", 0, 2, -1, 1, Q("1.8 mm")),
    Sketcher.Constraint("DistanceY", 0, 1, 0, 2, Q("1.161959 mm")),
])
pad6 = body.newObject("PartDesign::Pad", "Pad005")
pad6.Profile = sketch13
pad6.Length = 0.95

doc.recompute()
